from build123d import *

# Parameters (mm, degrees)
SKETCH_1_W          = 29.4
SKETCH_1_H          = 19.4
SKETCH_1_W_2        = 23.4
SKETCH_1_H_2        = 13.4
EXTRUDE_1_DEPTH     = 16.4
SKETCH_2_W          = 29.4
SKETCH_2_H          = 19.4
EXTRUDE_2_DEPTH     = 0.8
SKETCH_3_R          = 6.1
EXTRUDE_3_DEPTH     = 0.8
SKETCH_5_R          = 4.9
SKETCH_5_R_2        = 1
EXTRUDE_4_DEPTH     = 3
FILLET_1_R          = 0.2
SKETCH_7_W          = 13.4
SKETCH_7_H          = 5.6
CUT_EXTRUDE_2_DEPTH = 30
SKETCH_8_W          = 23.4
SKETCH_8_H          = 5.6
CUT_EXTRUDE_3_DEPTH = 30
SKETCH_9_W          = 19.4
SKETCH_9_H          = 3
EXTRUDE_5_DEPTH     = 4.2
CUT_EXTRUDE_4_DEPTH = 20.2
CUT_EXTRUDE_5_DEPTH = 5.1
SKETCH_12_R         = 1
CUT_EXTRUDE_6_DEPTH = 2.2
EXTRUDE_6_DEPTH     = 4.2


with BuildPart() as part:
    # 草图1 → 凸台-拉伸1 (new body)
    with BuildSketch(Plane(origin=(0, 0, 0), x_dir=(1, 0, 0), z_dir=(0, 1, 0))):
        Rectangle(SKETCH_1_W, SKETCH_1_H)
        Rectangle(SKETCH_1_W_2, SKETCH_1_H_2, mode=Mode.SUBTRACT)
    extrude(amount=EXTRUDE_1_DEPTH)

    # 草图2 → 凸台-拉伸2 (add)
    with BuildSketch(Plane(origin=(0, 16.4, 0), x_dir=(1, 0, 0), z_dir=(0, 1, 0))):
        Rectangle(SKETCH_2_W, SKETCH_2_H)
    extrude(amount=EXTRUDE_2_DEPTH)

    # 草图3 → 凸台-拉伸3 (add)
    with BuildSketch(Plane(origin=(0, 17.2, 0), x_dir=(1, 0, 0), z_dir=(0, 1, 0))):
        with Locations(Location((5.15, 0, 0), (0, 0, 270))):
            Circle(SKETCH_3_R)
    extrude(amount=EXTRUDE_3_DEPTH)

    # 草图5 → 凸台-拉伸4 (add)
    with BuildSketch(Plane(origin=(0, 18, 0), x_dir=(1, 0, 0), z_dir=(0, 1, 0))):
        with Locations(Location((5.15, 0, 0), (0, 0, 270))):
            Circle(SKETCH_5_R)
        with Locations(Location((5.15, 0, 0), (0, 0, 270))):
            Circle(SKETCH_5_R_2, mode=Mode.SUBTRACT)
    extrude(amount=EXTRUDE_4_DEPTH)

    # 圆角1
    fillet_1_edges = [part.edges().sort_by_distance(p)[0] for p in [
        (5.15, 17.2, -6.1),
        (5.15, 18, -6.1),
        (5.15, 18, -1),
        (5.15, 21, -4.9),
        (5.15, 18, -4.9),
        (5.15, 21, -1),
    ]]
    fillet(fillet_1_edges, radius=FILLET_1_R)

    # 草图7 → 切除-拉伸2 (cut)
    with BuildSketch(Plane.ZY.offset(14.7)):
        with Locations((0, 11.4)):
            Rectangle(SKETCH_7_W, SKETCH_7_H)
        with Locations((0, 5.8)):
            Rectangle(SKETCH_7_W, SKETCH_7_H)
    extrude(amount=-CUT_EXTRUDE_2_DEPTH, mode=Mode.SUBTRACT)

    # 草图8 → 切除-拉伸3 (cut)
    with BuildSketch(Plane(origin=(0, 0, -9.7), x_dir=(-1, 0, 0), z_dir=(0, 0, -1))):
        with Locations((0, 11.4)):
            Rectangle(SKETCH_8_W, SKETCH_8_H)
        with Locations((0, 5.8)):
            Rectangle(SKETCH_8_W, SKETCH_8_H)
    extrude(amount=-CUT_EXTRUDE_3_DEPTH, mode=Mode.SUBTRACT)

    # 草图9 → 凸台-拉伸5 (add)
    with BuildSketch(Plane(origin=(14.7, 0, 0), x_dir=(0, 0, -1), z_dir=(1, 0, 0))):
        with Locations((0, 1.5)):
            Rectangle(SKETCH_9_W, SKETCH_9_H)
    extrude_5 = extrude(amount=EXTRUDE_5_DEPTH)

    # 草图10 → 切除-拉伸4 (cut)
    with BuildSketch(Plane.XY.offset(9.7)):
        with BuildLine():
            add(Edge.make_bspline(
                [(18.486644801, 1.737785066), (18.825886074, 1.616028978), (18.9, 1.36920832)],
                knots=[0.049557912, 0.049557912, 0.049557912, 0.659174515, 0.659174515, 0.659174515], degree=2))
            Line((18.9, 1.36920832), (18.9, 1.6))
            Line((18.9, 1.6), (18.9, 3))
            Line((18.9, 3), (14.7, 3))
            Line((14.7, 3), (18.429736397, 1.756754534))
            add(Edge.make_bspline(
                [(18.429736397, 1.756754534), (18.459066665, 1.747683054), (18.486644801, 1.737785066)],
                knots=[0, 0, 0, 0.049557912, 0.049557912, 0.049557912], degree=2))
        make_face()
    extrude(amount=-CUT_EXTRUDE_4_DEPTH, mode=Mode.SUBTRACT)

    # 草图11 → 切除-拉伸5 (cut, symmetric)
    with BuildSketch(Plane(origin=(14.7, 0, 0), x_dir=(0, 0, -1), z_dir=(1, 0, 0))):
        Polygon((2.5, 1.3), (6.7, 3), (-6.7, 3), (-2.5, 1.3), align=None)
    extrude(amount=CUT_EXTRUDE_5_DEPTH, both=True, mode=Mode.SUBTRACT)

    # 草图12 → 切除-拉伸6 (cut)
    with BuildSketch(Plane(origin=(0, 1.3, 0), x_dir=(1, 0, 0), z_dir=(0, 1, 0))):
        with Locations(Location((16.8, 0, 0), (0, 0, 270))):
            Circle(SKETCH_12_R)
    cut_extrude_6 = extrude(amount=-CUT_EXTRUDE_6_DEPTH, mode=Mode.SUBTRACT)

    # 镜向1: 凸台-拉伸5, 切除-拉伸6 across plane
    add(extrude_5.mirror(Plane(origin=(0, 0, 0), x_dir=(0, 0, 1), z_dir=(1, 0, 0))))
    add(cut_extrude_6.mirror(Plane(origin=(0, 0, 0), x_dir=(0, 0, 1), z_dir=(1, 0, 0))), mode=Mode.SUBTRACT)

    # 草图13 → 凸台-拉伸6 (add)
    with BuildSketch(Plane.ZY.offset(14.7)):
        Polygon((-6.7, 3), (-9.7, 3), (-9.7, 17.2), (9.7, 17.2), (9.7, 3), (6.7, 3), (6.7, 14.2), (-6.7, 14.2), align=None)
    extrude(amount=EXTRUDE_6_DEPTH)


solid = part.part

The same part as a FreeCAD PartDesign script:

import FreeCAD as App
import Part
import Sketcher
from FreeCAD import Vector


def edges_at(feature, points):
    """Names of the edges that pass closest to the given points."""
    edges = feature.Shape.Edges
    near = lambda p: min(range(len(edges)), key=lambda i: edges[i].distToShape(Part.Vertex(*p))[0])
    return sorted({f"Edge{near(p) + 1}" for p in points})


def add_polygon(sketch, points):
    """Adds a closed chain of lines whose ends are joined by coincident constraints."""
    first, n = sketch.GeometryCount, len(points)
    for a, b in zip(points, points[1:] + points[:1]):
        sketch.addGeometry(Part.LineSegment(App.Vector(*a, 0), App.Vector(*b, 0)), False)
    for i in range(n):
        sketch.addConstraint(Sketcher.Constraint("Coincident", first + i, 2, first + (i + 1) % n, 1))

doc = App.newDocument("Part")
body = doc.addObject("PartDesign::Body", "Body")

# Sketch on XZ plane
sketch1 = doc.addObject("Sketcher::SketchObject", "Sketch")
body.addObject(sketch1)
sketch1.AttachmentSupport = (doc.XZ_Plane, [""])
sketch1.MapMode = "FlatFace"
add_polygon(sketch1, [(-15, -10), (-15, 10), (15, 10), (15, -10)])  # lines 0-3
add_polygon(sketch1, [(12, 7), (-12, 7), (-12, -7), (12, -7)])  # lines 4-7
sketch1.addConstraint(Sketcher.Constraint("Vertical", 0))
sketch1.addConstraint(Sketcher.Constraint("Horizontal", 1))
sketch1.addConstraint(Sketcher.Constraint("Vertical", 2))
sketch1.addConstraint(Sketcher.Constraint("Horizontal", 3))
sketch1.addConstraint(Sketcher.Constraint("Horizontal", 4))
sketch1.addConstraint(Sketcher.Constraint("Vertical", 5))
sketch1.addConstraint(Sketcher.Constraint("Horizontal", 6))
sketch1.addConstraint(Sketcher.Constraint("Vertical", 7))
sketch1.addConstraint(Sketcher.Constraint("Symmetric", 0, 2, 2, 2, -1, 1))
sketch1.addConstraint(Sketcher.Constraint("Symmetric", 4, 2, 6, 2, -1, 1))
sketch1.addConstraint(Sketcher.Constraint("DistanceX", 1, 1, 1, 2, 29.4))
sketch1.addConstraint(Sketcher.Constraint("DistanceX", 4, 2, 4, 1, 23.4))
sketch1.addConstraint(Sketcher.Constraint("DistanceY", 0, 1, 0, 2, 19.4))
sketch1.addConstraint(Sketcher.Constraint("DistanceY", 5, 2, 5, 1, 13.4))
pad1 = doc.addObject("PartDesign::Pad", "Pad")
body.addObject(pad1)
pad1.Profile = sketch1
pad1.Length = 16.4
pad1.Reversed = True

# Sketch on XZ plane
sketch2 = doc.addObject("Sketcher::SketchObject", "Sketch001")
body.addObject(sketch2)
sketch2.AttachmentSupport = (doc.XZ_Plane, [""])
sketch2.MapMode = "FlatFace"
sketch2.AttachmentOffset = App.Placement(Vector(0, 0, -16.4), App.Rotation())
add_polygon(sketch2, [(-15, -10), (-15, 10), (15, 10), (15, -10)])  # lines 0-3
sketch2.addConstraint(Sketcher.Constraint("Vertical", 0))
sketch2.addConstraint(Sketcher.Constraint("Horizontal", 1))
sketch2.addConstraint(Sketcher.Constraint("Vertical", 2))
sketch2.addConstraint(Sketcher.Constraint("Horizontal", 3))
sketch2.addConstraint(Sketcher.Constraint("Symmetric", 0, 2, 2, 2, -1, 1))
sketch2.addConstraint(Sketcher.Constraint("DistanceX", 1, 1, 1, 2, 29.4))
sketch2.addConstraint(Sketcher.Constraint("DistanceY", 0, 1, 0, 2, 19.4))
pad2 = doc.addObject("PartDesign::Pad", "Pad001")
body.addObject(pad2)
pad2.Profile = sketch2
pad2.Length = 0.8
pad2.Reversed = True

# Sketch on XZ plane
sketch3 = doc.addObject("Sketcher::SketchObject", "Sketch002")
body.addObject(sketch3)
sketch3.AttachmentSupport = (doc.XZ_Plane, [""])
sketch3.MapMode = "FlatFace"
sketch3.AttachmentOffset = App.Placement(Vector(0, 0, -17.2), App.Rotation())
sketch3.addGeometry(Part.Circle(Vector(5, 0, 0), Vector(0, 0, 1), 6), False)
sketch3.addConstraint(Sketcher.Constraint("PointOnObject", 0, 3, -1))
sketch3.addConstraint(Sketcher.Constraint("Diameter", 0, 12.2))
sketch3.addConstraint(Sketcher.Constraint("DistanceX", -1, 1, 0, 3, 5.15))
pad3 = doc.addObject("PartDesign::Pad", "Pad002")
body.addObject(pad3)
pad3.Profile = sketch3
pad3.Length = 0.8
pad3.Reversed = True

# Sketch on XZ plane
sketch4 = doc.addObject("Sketcher::SketchObject", "Sketch003")
body.addObject(sketch4)
sketch4.AttachmentSupport = (doc.XZ_Plane, [""])
sketch4.MapMode = "FlatFace"
sketch4.AttachmentOffset = App.Placement(Vector(0, 0, -18), App.Rotation())
sketch4.addGeometry(Part.Circle(Vector(5.2, 0, 0), Vector(0, 0, 1), 4.9), False)
sketch4.addGeometry(Part.Circle(Vector(5.2, 0, 0), Vector(0, 0, 1), 1), False)
sketch4.addConstraint(Sketcher.Constraint("Coincident", 1, 3, 0, 3))
sketch4.addConstraint(Sketcher.Constraint("PointOnObject", 0, 3, -1))
sketch4.addConstraint(Sketcher.Constraint("Diameter", 1, 2.0))
sketch4.addConstraint(Sketcher.Constraint("Diameter", 0, 9.8))
sketch4.addConstraint(Sketcher.Constraint("DistanceX", -1, 1, 0, 3, 5.15))
pad4 = doc.addObject("PartDesign::Pad", "Pad003")
body.addObject(pad4)
pad4.Profile = sketch4
pad4.Length = 3
pad4.Reversed = True
doc.recompute()

fillet = doc.addObject("PartDesign::Fillet", "Fillet")
body.addObject(fillet)
fillet.Base = (pad4, edges_at(pad4, [
    (5.15, 17.2, -6.1),
    (5.15, 18, -6.1),
    (5.15, 18, -1),
    (5.15, 21, -4.9),
    (5.15, 18, -4.9),
    (5.15, 21, -1),
]))
fillet.Radius = 0.2

# Sketch on YZ plane
sketch5 = doc.addObject("Sketcher::SketchObject", "Sketch004")
body.addObject(sketch5)
sketch5.AttachmentSupport = (doc.YZ_Plane, [""])
sketch5.MapMode = "FlatFace"
sketch5.AttachmentOffset = App.Placement(Vector(0, 0, -14.7), App.Rotation())
add_polygon(sketch5, [(14, -7), (3, -7), (3, 7), (14, 7)])  # lines 0-3
sketch5.addConstraint(Sketcher.Constraint("Horizontal", 0))
sketch5.addConstraint(Sketcher.Constraint("Vertical", 1))
sketch5.addConstraint(Sketcher.Constraint("Horizontal", 2))
sketch5.addConstraint(Sketcher.Constraint("Vertical", 3))
sketch5.addConstraint(Sketcher.Constraint("DistanceX", 0, 2, 0, 1, 11.2))
sketch5.addConstraint(Sketcher.Constraint("DistanceY", 1, 1, 1, 2, 13.4))
sketch5.addConstraint(Sketcher.Constraint("DistanceX", -1, 1, 0, 2, 3.0))
sketch5.addConstraint(Sketcher.Constraint("DistanceY", 0, 2, -1, 1, 6.7))
pocket1 = doc.addObject("PartDesign::Pocket", "Pocket")
body.addObject(pocket1)
pocket1.Profile = sketch5
pocket1.Length = 30
pocket1.Reversed = True

# Sketch on XY plane
sketch6 = doc.addObject("Sketcher::SketchObject", "Sketch005")
body.addObject(sketch6)
sketch6.AttachmentSupport = (doc.XY_Plane, [""])
sketch6.MapMode = "FlatFace"
sketch6.AttachmentOffset = App.Placement(Vector(0, 0, -9.7), App.Rotation())
add_polygon(sketch6, [(12, 14), (12, 3), (-12, 3), (-12, 14)])  # lines 0-3
sketch6.addConstraint(Sketcher.Constraint("Vertical", 0))
sketch6.addConstraint(Sketcher.Constraint("Horizontal", 1))
sketch6.addConstraint(Sketcher.Constraint("Vertical", 2))
sketch6.addConstraint(Sketcher.Constraint("Horizontal", 3))
sketch6.addConstraint(Sketcher.Constraint("DistanceX", 1, 2, 1, 1, 23.4))
sketch6.addConstraint(Sketcher.Constraint("DistanceY", 0, 2, 0, 1, 11.2))
sketch6.addConstraint(Sketcher.Constraint("DistanceY", -1, 1, 0, 2, 3.0))
sketch6.addConstraint(Sketcher.Constraint("DistanceX", -1, 1, 0, 2, 11.7))
pocket2 = doc.addObject("PartDesign::Pocket", "Pocket001")
body.addObject(pocket2)
pocket2.Profile = sketch6
pocket2.Length = 30
pocket2.Reversed = True

# Sketch on YZ plane
sketch7 = doc.addObject("Sketcher::SketchObject", "Sketch006")
body.addObject(sketch7)
sketch7.AttachmentSupport = (doc.YZ_Plane, [""])
sketch7.MapMode = "FlatFace"
sketch7.AttachmentOffset = App.Placement(Vector(0, 0, 14.7), App.Rotation())
add_polygon(sketch7, [(3, 9.7), (0, 9.7), (0, -9.7), (3, -9.7)])  # lines 0-3
sketch7.addConstraint(Sketcher.Constraint("Horizontal", 0))
sketch7.addConstraint(Sketcher.Constraint("Vertical", 1))
sketch7.addConstraint(Sketcher.Constraint("Horizontal", 2))
sketch7.addConstraint(Sketcher.Constraint("Vertical", 3))
sketch7.addConstraint(Sketcher.Constraint("Symmetric", 0, 2, 1, 2, -1, 1))
sketch7.addConstraint(Sketcher.Constraint("DistanceX", 0, 2, 0, 1, 3.0))
sketch7.addConstraint(Sketcher.Constraint("DistanceY", 1, 2, 1, 1, 19.4))
pad5 = doc.addObject("PartDesign::Pad", "Pad004")
body.addObject(pad5)
pad5.Profile = sketch7
pad5.Length = 4.2

# Sketch on XY plane
sketch8 = doc.addObject("Sketcher::SketchObject", "Sketch007")
body.addObject(sketch8)
sketch8.AttachmentSupport = (doc.XY_Plane, [""])
sketch8.MapMode = "FlatFace"
sketch8.AttachmentOffset = App.Placement(Vector(0, 0, 9.7), App.Rotation())
sketch8.addGeometry(Part.BSplineCurve([Vector(18.486645, 1.737785, 0), Vector(18.825886, 1.616029, 0), Vector(18.9, 1.369208, 0)], [3, 3], [0.049557912, 0.659174515], False, 2, [1, 1, 1], False), False)
sketch8.addGeometry(Part.LineSegment(Vector(18.9, 1.369208, 0), Vector(18.9, 3, 0)), False)
sketch8.addGeometry(Part.LineSegment(Vector(18.9, 3, 0), Vector(14.7, 3, 0)), False)
sketch8.addGeometry(Part.LineSegment(Vector(14.7, 3, 0), Vector(18.429736, 1.756755, 0)), False)
sketch8.addGeometry(Part.BSplineCurve([Vector(18.429736, 1.756755, 0), Vector(18.459067, 1.747683, 0), Vector(18.486645, 1.737785, 0)], [3, 3], [0, 0.049557912], False, 2, [1, 1, 1], False), False)
sketch8.addConstraint(Sketcher.Constraint("Block", 0))
sketch8.addConstraint(Sketcher.Constraint("Block", 4))
sketch8.addConstraint(Sketcher.Constraint("Coincident", 0, 2, 1, 1))
sketch8.addConstraint(Sketcher.Constraint("Coincident", 1, 2, 2, 1))
sketch8.addConstraint(Sketcher.Constraint("Coincident", 2, 2, 3, 1))
sketch8.addConstraint(Sketcher.Constraint("Coincident", 3, 2, 4, 1))
sketch8.addConstraint(Sketcher.Constraint("Vertical", 1))
sketch8.addConstraint(Sketcher.Constraint("Horizontal", 2))
sketch8.addConstraint(Sketcher.Constraint("DistanceX", 2, 2, 2, 1, 4.2))
sketch8.addConstraint(Sketcher.Constraint("DistanceY", -1, 1, 1, 2, 3.0))
pocket3 = doc.addObject("PartDesign::Pocket", "Pocket002")
body.addObject(pocket3)
pocket3.Profile = sketch8
pocket3.Length = 20.2

# Sketch on YZ plane
sketch9 = doc.addObject("Sketcher::SketchObject", "Sketch008")
body.addObject(sketch9)
sketch9.AttachmentSupport = (doc.YZ_Plane, [""])
sketch9.MapMode = "FlatFace"
sketch9.AttachmentOffset = App.Placement(Vector(0, 0, 14.7), App.Rotation())
add_polygon(sketch9, [(1.3, -2.5), (3, -6.7), (3, 6.7), (1.3, 2.5)])  # lines 0-3
sketch9.addConstraint(Sketcher.Constraint("Vertical", 1))
sketch9.addConstraint(Sketcher.Constraint("Vertical", 3))
sketch9.addConstraint(Sketcher.Constraint("Equal", 0, 2))
sketch9.addConstraint(Sketcher.Constraint("DistanceY", 3, 2, 3, 1, 5.0))
sketch9.addConstraint(Sketcher.Constraint("DistanceY", 1, 1, 1, 2, 13.4))
sketch9.addConstraint(Sketcher.Constraint("DistanceX", -1, 1, 0, 2, 3.0))
sketch9.addConstraint(Sketcher.Constraint("DistanceY", 0, 2, -1, 1, 6.7))
sketch9.addConstraint(Sketcher.Constraint("DistanceX", -1, 1, 2, 2, 1.3))
pocket4 = doc.addObject("PartDesign::Pocket", "Pocket003")
body.addObject(pocket4)
pocket4.Profile = sketch9
pocket4.Length = 10.2
pocket4.Midplane = True

# Sketch on XZ plane
sketch10 = doc.addObject("Sketcher::SketchObject", "Sketch009")
body.addObject(sketch10)
sketch10.AttachmentSupport = (doc.XZ_Plane, [""])
sketch10.MapMode = "FlatFace"
sketch10.AttachmentOffset = App.Placement(Vector(0, 0, -1.3), App.Rotation())
sketch10.addGeometry(Part.Circle(Vector(16.8, 0, 0), Vector(0, 0, 1), 1), False)
sketch10.addConstraint(Sketcher.Constraint("PointOnObject", 0, 3, -1))
sketch10.addConstraint(Sketcher.Constraint("Diameter", 0, 2.0))
sketch10.addConstraint(Sketcher.Constraint("DistanceX", -1, 1, 0, 3, 16.8))
pocket5 = doc.addObject("PartDesign::Pocket", "Pocket004")
body.addObject(pocket5)
pocket5.Profile = sketch10
pocket5.Length = 2.2
pocket5.Reversed = True
doc.recompute()

mirrored = doc.addObject("PartDesign::Mirrored", "Mirrored")
body.addObject(mirrored)
mirrored.Originals = [pad5, pocket5]
mirrored.MirrorPlane = (doc.YZ_Plane, [""])
body.Tip = mirrored

# Sketch on YZ plane
sketch11 = doc.addObject("Sketcher::SketchObject", "Sketch010")
body.addObject(sketch11)
sketch11.AttachmentSupport = (doc.YZ_Plane, [""])
sketch11.MapMode = "FlatFace"
sketch11.AttachmentOffset = App.Placement(Vector(0, 0, -14.7), App.Rotation())
add_polygon(sketch11, [(3, -9.7), (3, -6.7), (14.2, -6.7), (14.2, 6.7), (3, 6.7), (3, 9.7), (17.2, 9.7), (17.2, -9.7)])  # lines 0-7
sketch11.addConstraint(Sketcher.Constraint("Vertical", 0))
sketch11.addConstraint(Sketcher.Constraint("Horizontal", 1))
sketch11.addConstraint(Sketcher.Constraint("Vertical", 2))
sketch11.addConstraint(Sketcher.Constraint("Horizontal", 3))
sketch11.addConstraint(Sketcher.Constraint("Vertical", 4))
sketch11.addConstraint(Sketcher.Constraint("Horizontal", 5))
sketch11.addConstraint(Sketcher.Constraint("Vertical", 6))
sketch11.addConstraint(Sketcher.Constraint("Horizontal", 7))
sketch11.addConstraint(Sketcher.Constraint("Symmetric", 0, 2, 3, 2, -1))
sketch11.addConstraint(Sketcher.Constraint("Equal", 0, 4))
sketch11.addConstraint(Sketcher.Constraint("DistanceY", 0, 1, 0, 2, 3.0))
sketch11.addConstraint(Sketcher.Constraint("DistanceX", 1, 1, 1, 2, 11.2))
sketch11.addConstraint(Sketcher.Constraint("DistanceX", 5, 1, 5, 2, 14.2))
sketch11.addConstraint(Sketcher.Constraint("DistanceY", 2, 1, 2, 2, 13.4))
sketch11.addConstraint(Sketcher.Constraint("DistanceX", -1, 1, 0, 2, 3.0))
pad6 = doc.addObject("PartDesign::Pad", "Pad005")
body.addObject(pad6)
pad6.Profile = sketch11
pad6.Length = 4.2
pad6.Reversed = True

doc.recompute()
